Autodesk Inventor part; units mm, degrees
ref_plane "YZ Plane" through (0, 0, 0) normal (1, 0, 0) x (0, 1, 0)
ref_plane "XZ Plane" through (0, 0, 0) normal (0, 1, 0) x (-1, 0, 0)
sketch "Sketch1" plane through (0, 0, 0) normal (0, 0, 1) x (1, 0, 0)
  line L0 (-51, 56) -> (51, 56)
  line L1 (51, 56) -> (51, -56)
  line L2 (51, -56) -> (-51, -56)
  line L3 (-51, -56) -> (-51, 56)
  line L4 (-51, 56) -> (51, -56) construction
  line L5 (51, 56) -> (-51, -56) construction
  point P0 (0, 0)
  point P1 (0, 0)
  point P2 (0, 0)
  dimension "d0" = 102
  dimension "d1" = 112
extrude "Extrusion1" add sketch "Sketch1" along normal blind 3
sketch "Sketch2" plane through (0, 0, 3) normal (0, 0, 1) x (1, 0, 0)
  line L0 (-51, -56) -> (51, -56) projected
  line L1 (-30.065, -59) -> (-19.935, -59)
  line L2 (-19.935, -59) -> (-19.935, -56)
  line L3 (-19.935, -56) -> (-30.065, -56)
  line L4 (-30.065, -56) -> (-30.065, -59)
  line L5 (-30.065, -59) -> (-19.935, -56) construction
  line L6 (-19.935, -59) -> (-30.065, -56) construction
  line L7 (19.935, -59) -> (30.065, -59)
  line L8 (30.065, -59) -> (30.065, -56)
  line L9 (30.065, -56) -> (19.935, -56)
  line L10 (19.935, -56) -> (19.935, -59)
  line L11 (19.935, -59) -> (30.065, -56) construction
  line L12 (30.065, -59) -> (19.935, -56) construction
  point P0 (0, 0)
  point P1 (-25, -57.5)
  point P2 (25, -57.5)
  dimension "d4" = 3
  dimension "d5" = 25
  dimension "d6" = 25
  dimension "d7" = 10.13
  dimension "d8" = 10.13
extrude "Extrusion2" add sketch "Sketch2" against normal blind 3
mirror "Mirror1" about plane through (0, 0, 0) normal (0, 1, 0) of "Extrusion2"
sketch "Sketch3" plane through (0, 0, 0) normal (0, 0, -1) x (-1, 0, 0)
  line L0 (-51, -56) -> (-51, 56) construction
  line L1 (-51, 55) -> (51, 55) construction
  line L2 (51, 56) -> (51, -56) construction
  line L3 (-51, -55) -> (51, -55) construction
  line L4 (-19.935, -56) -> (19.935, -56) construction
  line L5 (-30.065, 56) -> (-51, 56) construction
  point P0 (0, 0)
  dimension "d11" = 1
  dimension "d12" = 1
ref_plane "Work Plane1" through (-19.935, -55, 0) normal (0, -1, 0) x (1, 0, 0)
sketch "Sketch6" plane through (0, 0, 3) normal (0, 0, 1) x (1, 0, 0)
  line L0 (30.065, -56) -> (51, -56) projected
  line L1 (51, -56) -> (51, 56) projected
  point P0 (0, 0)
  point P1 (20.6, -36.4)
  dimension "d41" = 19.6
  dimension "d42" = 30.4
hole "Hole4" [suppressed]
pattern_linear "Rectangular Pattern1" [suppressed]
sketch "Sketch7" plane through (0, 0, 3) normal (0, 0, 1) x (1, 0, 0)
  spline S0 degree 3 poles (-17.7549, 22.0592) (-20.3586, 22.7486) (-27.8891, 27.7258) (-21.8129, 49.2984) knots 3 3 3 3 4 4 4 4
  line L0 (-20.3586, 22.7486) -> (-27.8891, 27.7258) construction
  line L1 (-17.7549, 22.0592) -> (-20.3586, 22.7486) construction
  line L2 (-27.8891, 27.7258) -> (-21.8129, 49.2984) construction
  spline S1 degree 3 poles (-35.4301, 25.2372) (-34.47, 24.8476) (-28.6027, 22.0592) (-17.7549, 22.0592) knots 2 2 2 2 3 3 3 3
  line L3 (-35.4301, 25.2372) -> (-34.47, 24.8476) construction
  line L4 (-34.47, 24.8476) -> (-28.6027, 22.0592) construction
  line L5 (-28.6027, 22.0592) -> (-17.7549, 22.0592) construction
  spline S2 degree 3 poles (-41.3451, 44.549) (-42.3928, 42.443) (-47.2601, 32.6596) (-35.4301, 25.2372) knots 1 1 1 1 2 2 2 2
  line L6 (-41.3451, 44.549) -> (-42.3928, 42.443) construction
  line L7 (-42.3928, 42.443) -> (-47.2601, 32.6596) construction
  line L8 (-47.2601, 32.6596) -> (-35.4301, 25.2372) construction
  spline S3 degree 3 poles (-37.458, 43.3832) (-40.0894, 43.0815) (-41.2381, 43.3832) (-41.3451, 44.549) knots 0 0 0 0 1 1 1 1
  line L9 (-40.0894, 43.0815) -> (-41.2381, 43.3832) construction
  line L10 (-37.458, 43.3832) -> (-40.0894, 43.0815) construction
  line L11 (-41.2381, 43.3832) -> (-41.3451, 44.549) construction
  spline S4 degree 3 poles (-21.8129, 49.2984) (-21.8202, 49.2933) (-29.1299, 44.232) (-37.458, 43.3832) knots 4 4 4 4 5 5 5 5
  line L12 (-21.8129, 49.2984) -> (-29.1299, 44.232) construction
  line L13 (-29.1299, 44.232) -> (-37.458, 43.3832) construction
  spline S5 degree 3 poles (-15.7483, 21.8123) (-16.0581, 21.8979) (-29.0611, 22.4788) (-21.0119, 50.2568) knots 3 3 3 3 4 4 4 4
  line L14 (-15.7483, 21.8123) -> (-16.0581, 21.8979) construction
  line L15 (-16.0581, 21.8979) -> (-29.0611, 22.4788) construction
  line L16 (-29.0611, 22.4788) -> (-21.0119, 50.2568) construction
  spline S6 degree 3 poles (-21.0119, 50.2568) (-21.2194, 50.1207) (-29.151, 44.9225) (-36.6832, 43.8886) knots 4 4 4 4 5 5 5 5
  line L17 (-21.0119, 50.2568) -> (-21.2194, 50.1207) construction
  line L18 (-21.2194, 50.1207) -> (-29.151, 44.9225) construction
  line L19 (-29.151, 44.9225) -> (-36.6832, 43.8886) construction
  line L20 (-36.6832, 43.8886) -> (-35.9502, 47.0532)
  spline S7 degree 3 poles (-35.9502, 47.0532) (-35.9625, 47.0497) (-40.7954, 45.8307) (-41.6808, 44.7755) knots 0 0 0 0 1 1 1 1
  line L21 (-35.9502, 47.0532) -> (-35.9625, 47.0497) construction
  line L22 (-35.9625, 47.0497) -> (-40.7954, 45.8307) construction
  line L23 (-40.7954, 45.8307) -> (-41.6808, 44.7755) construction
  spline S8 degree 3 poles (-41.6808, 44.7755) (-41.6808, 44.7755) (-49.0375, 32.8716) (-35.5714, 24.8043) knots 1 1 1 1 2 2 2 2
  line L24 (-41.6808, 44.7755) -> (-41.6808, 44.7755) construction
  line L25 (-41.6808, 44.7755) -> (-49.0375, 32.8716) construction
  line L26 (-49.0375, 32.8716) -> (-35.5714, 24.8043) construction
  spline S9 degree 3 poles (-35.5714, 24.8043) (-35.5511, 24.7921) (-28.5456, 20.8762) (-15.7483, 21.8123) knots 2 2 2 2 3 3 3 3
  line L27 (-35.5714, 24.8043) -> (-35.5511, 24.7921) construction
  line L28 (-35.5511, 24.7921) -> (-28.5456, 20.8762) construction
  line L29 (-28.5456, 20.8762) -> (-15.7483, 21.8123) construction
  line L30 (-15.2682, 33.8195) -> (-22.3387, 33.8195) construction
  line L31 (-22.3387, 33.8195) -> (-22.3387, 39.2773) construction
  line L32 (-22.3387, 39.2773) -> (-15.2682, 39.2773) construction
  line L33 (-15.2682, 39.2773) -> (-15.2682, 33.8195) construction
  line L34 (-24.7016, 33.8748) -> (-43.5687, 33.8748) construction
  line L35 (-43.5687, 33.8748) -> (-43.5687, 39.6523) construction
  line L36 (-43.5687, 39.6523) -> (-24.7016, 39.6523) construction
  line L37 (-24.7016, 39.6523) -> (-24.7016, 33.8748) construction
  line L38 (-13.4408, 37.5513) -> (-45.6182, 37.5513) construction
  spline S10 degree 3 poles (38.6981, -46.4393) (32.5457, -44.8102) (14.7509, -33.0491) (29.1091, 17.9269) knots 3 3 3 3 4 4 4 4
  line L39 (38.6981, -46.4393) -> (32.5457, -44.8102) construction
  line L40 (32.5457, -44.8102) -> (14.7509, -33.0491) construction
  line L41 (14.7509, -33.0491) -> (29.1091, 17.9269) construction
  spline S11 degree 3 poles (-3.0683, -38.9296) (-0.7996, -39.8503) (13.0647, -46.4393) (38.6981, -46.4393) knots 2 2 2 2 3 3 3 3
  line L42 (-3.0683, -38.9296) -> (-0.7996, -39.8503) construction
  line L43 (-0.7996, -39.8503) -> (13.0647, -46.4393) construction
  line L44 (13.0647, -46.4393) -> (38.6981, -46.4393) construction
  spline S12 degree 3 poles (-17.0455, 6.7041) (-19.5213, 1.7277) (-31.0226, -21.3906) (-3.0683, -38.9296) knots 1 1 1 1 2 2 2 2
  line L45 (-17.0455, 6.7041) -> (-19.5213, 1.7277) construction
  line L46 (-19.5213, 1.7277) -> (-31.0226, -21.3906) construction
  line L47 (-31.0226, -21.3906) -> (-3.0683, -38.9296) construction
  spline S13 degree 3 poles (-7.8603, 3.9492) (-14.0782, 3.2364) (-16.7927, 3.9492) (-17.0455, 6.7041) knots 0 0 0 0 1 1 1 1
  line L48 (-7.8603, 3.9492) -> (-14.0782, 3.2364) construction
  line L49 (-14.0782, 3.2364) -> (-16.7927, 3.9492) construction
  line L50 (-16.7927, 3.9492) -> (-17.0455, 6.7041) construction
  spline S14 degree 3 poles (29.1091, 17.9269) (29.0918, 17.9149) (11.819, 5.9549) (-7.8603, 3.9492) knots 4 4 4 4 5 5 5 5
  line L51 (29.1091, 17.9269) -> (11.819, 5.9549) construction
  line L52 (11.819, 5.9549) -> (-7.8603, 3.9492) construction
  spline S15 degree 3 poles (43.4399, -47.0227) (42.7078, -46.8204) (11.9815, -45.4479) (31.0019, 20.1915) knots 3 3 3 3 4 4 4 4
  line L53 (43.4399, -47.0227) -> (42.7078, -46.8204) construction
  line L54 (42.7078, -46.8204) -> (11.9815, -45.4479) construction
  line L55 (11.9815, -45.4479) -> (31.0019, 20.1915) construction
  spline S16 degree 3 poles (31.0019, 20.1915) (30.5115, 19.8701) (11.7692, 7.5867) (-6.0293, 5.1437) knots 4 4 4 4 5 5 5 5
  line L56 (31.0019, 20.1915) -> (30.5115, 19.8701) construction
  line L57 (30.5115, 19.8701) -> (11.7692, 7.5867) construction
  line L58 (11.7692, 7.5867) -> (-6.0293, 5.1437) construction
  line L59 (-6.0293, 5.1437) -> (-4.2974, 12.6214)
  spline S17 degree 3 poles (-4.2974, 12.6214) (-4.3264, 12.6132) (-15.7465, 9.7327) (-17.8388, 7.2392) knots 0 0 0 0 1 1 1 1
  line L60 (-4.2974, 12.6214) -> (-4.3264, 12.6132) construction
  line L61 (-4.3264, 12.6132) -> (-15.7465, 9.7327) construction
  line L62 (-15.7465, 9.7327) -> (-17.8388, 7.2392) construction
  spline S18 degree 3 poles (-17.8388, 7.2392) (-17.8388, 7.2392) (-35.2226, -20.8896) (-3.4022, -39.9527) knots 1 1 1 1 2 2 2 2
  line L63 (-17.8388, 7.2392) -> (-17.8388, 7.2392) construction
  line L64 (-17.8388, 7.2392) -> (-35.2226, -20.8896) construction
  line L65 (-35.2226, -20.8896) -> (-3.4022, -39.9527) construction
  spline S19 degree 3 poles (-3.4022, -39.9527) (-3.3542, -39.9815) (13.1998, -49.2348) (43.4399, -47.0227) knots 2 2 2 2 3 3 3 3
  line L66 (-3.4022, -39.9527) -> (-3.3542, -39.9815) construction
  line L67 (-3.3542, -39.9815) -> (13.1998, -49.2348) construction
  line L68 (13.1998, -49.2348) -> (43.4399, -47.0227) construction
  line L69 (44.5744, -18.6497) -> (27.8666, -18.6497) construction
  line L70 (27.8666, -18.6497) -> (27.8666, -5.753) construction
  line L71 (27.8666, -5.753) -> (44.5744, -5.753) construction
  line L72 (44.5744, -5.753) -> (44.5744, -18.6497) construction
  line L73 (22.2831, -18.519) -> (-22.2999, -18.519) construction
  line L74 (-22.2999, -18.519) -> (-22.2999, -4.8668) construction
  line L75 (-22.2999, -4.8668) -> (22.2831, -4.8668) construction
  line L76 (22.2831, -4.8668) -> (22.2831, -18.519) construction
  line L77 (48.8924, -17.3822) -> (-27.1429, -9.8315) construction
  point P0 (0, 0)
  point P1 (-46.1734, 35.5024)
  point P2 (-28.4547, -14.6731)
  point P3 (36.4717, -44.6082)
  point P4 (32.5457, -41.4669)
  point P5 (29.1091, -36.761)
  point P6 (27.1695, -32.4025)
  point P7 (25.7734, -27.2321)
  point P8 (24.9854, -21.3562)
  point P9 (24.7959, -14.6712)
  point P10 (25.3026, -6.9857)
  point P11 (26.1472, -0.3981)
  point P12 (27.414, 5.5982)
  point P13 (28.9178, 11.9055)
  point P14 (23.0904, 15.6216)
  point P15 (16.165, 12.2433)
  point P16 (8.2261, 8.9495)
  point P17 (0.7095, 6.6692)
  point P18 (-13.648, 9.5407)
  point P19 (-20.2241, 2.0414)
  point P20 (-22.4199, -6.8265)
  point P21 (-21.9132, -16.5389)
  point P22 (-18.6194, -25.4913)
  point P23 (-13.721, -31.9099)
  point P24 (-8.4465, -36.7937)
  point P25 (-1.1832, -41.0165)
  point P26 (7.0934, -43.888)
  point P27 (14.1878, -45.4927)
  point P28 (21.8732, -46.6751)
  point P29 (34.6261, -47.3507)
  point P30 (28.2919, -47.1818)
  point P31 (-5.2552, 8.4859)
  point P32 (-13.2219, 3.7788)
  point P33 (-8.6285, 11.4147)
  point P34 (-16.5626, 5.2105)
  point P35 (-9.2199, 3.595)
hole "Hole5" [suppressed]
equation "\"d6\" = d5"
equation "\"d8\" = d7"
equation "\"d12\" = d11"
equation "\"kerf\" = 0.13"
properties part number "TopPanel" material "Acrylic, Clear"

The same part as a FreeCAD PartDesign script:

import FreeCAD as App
import Part
import Sketcher

V = App.Vector

doc = App.newDocument("Part")
body = doc.addObject("PartDesign::Body", "Body")

sketch1 = body.newObject("Sketcher::SketchObject", "Sketch")
sketch1.AttachmentSupport = (doc.getObject("XY_Plane"), [""])
sketch1.MapMode = "FlatFace"
sketch1.addGeometry(Part.LineSegment(V(51, 56, 0), V(-51, 56, 0)), False)
sketch1.addGeometry(Part.LineSegment(V(-51, 56, 0), V(-51, -56, 0)), False)
sketch1.addGeometry(Part.LineSegment(V(-51, -56, 0), V(51, -56, 0)), False)
sketch1.addGeometry(Part.LineSegment(V(51, -56, 0), V(51, 56, 0)), False)
sketch1.addConstraint(Sketcher.Constraint("Coincident", 0, 2, 1, 1))
sketch1.addConstraint(Sketcher.Constraint("Coincident", 1, 2, 2, 1))
sketch1.addConstraint(Sketcher.Constraint("Coincident", 2, 2, 3, 1))
sketch1.addConstraint(Sketcher.Constraint("Coincident", 3, 2, 0, 1))
sketch1.addConstraint(Sketcher.Constraint("Horizontal", 0))
sketch1.addConstraint(Sketcher.Constraint("Vertical", 1))
sketch1.addConstraint(Sketcher.Constraint("Horizontal", 2))
sketch1.addConstraint(Sketcher.Constraint("Vertical", 3))
sketch1.addConstraint(Sketcher.Constraint("Symmetric", 0, 2, 2, 2, -1, 1))
sketch1.addConstraint(Sketcher.Constraint("DistanceX", 0, 2, 0, 1, 102.0))
sketch1.addConstraint(Sketcher.Constraint("DistanceY", 1, 2, 1, 1, 112.0))
pad1 = body.newObject("PartDesign::Pad", "Pad")
pad1.Profile = sketch1
pad1.Length = 3

sketch2 = body.newObject("Sketcher::SketchObject", "Sketch001")
sketch2.AttachmentSupport = (doc.getObject("XY_Plane"), [""])
sketch2.MapMode = "FlatFace"
sketch2.AttachmentOffset = App.Placement(V(0, 0, 3), App.Rotation())
sketch2.addGeometry(Part.LineSegment(V(30.1, -56, 0), V(19.9, -56, 0)), False)
sketch2.addGeometry(Part.LineSegment(V(19.9, -56, 0), V(19.9, -59, 0)), False)
sketch2.addGeometry(Part.LineSegment(V(19.9, -59, 0), V(30.1, -59, 0)), False)
sketch2.addGeometry(Part.LineSegment(V(30.1, -59, 0), V(30.1, -56, 0)), False)
sketch2.addGeometry(Part.LineSegment(V(-19.9, -56, 0), V(-30.1, -56, 0)), False)
sketch2.addGeometry(Part.LineSegment(V(-30.1, -56, 0), V(-30.1, -59, 0)), False)
sketch2.addGeometry(Part.LineSegment(V(-30.1, -59, 0), V(-19.9, -59, 0)), False)
sketch2.addGeometry(Part.LineSegment(V(-19.9, -59, 0), V(-19.9, -56, 0)), False)
sketch2.addConstraint(Sketcher.Constraint("Coincident", 0, 2, 1, 1))
sketch2.addConstraint(Sketcher.Constraint("Coincident", 1, 2, 2, 1))
sketch2.addConstraint(Sketcher.Constraint("Coincident", 2, 2, 3, 1))
sketch2.addConstraint(Sketcher.Constraint("Coincident", 3, 2, 0, 1))
sketch2.addConstraint(Sketcher.Constraint("Coincident", 4, 2, 5, 1))
sketch2.addConstraint(Sketcher.Constraint("Coincident", 5, 2, 6, 1))
sketch2.addConstraint(Sketcher.Constraint("Coincident", 6, 2, 7, 1))
sketch2.addConstraint(Sketcher.Constraint("Coincident", 7, 2, 4, 1))
sketch2.addConstraint(Sketcher.Constraint("Horizontal", 0))
sketch2.addConstraint(Sketcher.Constraint("Vertical", 1))
sketch2.addConstraint(Sketcher.Constraint("Horizontal", 2))
sketch2.addConstraint(Sketcher.Constraint("Vertical", 3))
sketch2.addConstraint(Sketcher.Constraint("Horizontal", 4))
sketch2.addConstraint(Sketcher.Constraint("Vertical", 5))
sketch2.addConstraint(Sketcher.Constraint("Horizontal", 6))
sketch2.addConstraint(Sketcher.Constraint("Vertical", 7))
sketch2.addConstraint(Sketcher.Constraint("Symmetric", 3, 2, 4, 2, -2))
sketch2.addConstraint(Sketcher.Constraint("Symmetric", 1, 2, 6, 2, -2))
sketch2.addConstraint(Sketcher.Constraint("DistanceY", 1, 2, 1, 1, 3.0))
sketch2.addConstraint(Sketcher.Constraint("DistanceX", 0, 2, 0, 1, 10.13))
sketch2.addConstraint(Sketcher.Constraint("DistanceY", 0, 2, -1, 1, 56.0))
sketch2.addConstraint(Sketcher.Constraint("DistanceX", 4, 2, 0, 2, 50.0))
pad2 = body.newObject("PartDesign::Pad", "Pad001")
pad2.Profile = sketch2
pad2.Length = 3
pad2.Reversed = True
doc.recompute()

mirrored = body.newObject("PartDesign::Mirrored", "Mirrored")
mirrored.Originals = [pad2]
mirrored.MirrorPlane = (doc.getObject("XZ_Plane"), [""])
body.Tip = mirrored

doc.recompute()
